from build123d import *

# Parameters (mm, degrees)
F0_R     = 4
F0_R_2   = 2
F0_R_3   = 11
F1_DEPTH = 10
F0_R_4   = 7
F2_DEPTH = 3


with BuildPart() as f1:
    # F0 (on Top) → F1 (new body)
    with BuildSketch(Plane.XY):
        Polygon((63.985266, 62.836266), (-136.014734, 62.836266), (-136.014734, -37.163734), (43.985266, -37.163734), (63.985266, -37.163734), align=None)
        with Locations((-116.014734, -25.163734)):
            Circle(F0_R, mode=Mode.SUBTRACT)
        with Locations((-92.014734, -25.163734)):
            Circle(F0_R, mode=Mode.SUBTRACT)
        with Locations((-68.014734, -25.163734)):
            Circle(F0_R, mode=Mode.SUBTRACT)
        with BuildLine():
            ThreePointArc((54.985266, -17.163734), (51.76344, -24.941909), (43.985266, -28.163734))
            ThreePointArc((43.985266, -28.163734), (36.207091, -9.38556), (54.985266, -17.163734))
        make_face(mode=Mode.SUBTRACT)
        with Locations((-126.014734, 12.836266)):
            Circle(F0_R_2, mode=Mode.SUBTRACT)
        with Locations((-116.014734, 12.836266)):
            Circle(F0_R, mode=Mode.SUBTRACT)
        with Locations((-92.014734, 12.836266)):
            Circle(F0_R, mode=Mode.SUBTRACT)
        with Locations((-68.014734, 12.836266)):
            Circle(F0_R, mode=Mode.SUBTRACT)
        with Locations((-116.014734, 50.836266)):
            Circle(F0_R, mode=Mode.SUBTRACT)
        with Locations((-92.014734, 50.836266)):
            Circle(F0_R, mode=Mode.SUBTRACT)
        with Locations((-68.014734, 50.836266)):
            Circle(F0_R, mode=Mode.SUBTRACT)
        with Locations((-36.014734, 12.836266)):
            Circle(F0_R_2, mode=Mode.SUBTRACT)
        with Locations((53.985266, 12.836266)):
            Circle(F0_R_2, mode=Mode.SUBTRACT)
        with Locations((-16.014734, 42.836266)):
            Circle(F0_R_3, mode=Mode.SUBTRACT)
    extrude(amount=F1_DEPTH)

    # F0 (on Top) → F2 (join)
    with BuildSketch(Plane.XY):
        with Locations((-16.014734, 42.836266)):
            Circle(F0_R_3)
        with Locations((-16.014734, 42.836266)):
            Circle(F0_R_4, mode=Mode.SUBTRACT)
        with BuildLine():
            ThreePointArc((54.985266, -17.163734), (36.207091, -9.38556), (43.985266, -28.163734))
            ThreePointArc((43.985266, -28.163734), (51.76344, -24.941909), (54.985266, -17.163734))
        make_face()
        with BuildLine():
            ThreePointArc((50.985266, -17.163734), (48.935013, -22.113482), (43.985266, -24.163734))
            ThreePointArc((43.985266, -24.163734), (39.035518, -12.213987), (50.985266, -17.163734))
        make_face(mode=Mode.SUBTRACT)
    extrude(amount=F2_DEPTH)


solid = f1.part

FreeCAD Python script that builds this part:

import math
import FreeCAD as App
import Part
import Sketcher

V = App.Vector
Q = App.Units.Quantity


def add_polygon(sketch, points):
    """Adds a closed chain of lines whose ends are joined by coincident constraints."""
    first, n = sketch.GeometryCount, len(points)
    for a, b in zip(points, points[1:] + points[:1]):
        sketch.addGeometry(Part.LineSegment(App.Vector(*a, 0), App.Vector(*b, 0)), False)
    for i in range(n):
        sketch.addConstraint(Sketcher.Constraint("Coincident", first + i, 2, first + (i + 1) % n, 1))

doc = App.newDocument("Part")
body = doc.addObject("PartDesign::Body", "Body")

# Sketch on XY plane
sketch1 = doc.addObject("Sketcher::SketchObject", "Sketch")
body.addObject(sketch1)
sketch1.AttachmentSupport = (doc.XY_Plane, [""])
sketch1.MapMode = "FlatFace"
add_polygon(sketch1, [(64, 62.8), (-136, 62.8), (-136, -37.2), (64, -37.2)])  # lines 0-3
sketch1.addGeometry(Part.Circle(V(-116, -25.2, 0), V(0, 0, 1), 4), False)  # 4
sketch1.addGeometry(Part.Circle(V(-92, -25.2, 0), V(0, 0, 1), 4), False)  # 5
sketch1.addGeometry(Part.Circle(V(-68, -25.2, 0), V(0, 0, 1), 4), False)  # 6
sketch1.addGeometry(Part.ArcOfCircle(Part.Circle(V(44, -17.2, 0), V(0, 0, 1), 11), math.radians(0), math.radians(270)), False)  # 7
sketch1.addGeometry(Part.ArcOfCircle(Part.Circle(V(44, -17.2, 0), V(0, 0, 1), 11), math.radians(-90), math.radians(0)), False)  # 8
sketch1.addGeometry(Part.Circle(V(-126, 12.8, 0), V(0, 0, 1), 2), False)  # 9
sketch1.addGeometry(Part.Circle(V(-116, 12.8, 0), V(0, 0, 1), 4), False)  # 10
sketch1.addGeometry(Part.Circle(V(-92, 12.8, 0), V(0, 0, 1), 4), False)  # 11
sketch1.addGeometry(Part.Circle(V(-68, 12.8, 0), V(0, 0, 1), 4), False)  # 12
sketch1.addGeometry(Part.Circle(V(-116, 50.8, 0), V(0, 0, 1), 4), False)  # 13
sketch1.addGeometry(Part.Circle(V(-92, 50.8, 0), V(0, 0, 1), 4), False)  # 14
sketch1.addGeometry(Part.Circle(V(-68, 50.8, 0), V(0, 0, 1), 4), False)  # 15
sketch1.addGeometry(Part.Circle(V(-36, 12.8, 0), V(0, 0, 1), 2), False)  # 16
sketch1.addGeometry(Part.Circle(V(54, 12.8, 0), V(0, 0, 1), 2), False)  # 17
sketch1.addGeometry(Part.Circle(V(-16, 42.8, 0), V(0, 0, 1), 11), False)  # 18
sketch1.addConstraint([
    Sketcher.Constraint("Tangent", 7, 1, 8, 2),
    Sketcher.Constraint("Coincident", 8, 1, 7, 2),
    Sketcher.Constraint("Horizontal", 0),
    Sketcher.Constraint("Vertical", 1),
    Sketcher.Constraint("Horizontal", 2),
    Sketcher.Constraint("Vertical", 3),
    Sketcher.Constraint("Equal", 4, 5),
    Sketcher.Constraint("Equal", 5, 6),
    Sketcher.Constraint("Equal", 6, 10),
    Sketcher.Constraint("Equal", 10, 11),
    Sketcher.Constraint("Equal", 11, 12),
    Sketcher.Constraint("Equal", 12, 13),
    Sketcher.Constraint("Equal", 13, 14),
    Sketcher.Constraint("Equal", 14, 15),
    Sketcher.Constraint("Equal", 9, 16),
    Sketcher.Constraint("Equal", 16, 17),
    Sketcher.Constraint("Equal", 8, 18),
    Sketcher.Constraint("Horizontal", 4, 3, 5, 3),
    Sketcher.Constraint("Horizontal", 5, 3, 6, 3),
    Sketcher.Constraint("Horizontal", 9, 3, 10, 3),
    Sketcher.Constraint("Horizontal", 10, 3, 11, 3),
    Sketcher.Constraint("Horizontal", 11, 3, 12, 3),
    Sketcher.Constraint("Horizontal", 13, 3, 14, 3),
    Sketcher.Constraint("Horizontal", 14, 3, 15, 3),
    Sketcher.Constraint("Horizontal", 12, 3, 16, 3),
    Sketcher.Constraint("Horizontal", 16, 3, 17, 3),
    Sketcher.Constraint("Horizontal", 8, 3, 7, 1),
    Sketcher.Constraint("Vertical", 4, 3, 10, 3),
    Sketcher.Constraint("Vertical", 5, 3, 11, 3),
    Sketcher.Constraint("Vertical", 6, 3, 12, 3),
    Sketcher.Constraint("Vertical", 10, 3, 13, 3),
    Sketcher.Constraint("Vertical", 11, 3, 14, 3),
    Sketcher.Constraint("Vertical", 12, 3, 15, 3),
    Sketcher.Constraint("Vertical", 7, 3, 8, 1),
    Sketcher.Constraint("Diameter", 4, Q("8 mm")),
    Sketcher.Constraint("Diameter", 9, Q("4 mm")),
    Sketcher.Constraint("Diameter", 18, Q("22 mm")),
    Sketcher.Constraint("DistanceX", 0, 2, 0, 1, Q("200 mm")),
    Sketcher.Constraint("DistanceY", 1, 2, 1, 1, Q("100 mm")),
    Sketcher.Constraint("DistanceX", 4, 3, 5, 3, Q("24 mm")),
    Sketcher.Constraint("DistanceX", 5, 3, 6, 3, Q("24 mm")),
    Sketcher.Constraint("DistanceX", 6, 3, 7, 3, Q("112 mm")),
    Sketcher.Constraint("DistanceY", 6, 3, 7, 3, Q("8 mm")),
    Sketcher.Constraint("DistanceX", 9, 3, 4, 3, Q("10 mm")),
    Sketcher.Constraint("DistanceY", 4, 3, 9, 3, Q("38 mm")),
    Sketcher.Constraint("DistanceY", 10, 3, 13, 3, Q("38 mm")),
    Sketcher.Constraint("DistanceX", 12, 3, 16, 3, Q("32 mm")),
    Sketcher.Constraint("DistanceX", 8, 3, 17, 3, Q("10 mm")),
    Sketcher.Constraint("DistanceX", 16, 3, 18, 3, Q("20 mm")),
    Sketcher.Constraint("DistanceY", 16, 3, 18, 3, Q("30 mm")),
    Sketcher.Constraint("DistanceX", 0, 2, 13, 3, Q("20 mm")),
    Sketcher.Constraint("DistanceY", 13, 3, 0, 2, Q("12 mm")),
    Sketcher.Constraint("DistanceX", 4, 3, -1, 1, Q("116.014734 mm")),
    Sketcher.Constraint("DistanceY", 4, 3, -1, 1, Q("25.163734 mm")),
])
pad1 = doc.addObject("PartDesign::Pad", "Pad")
body.addObject(pad1)
pad1.Profile = sketch1
pad1.Length = 10

# Sketch on XY plane
sketch2 = doc.addObject("Sketcher::SketchObject", "Sketch001")
body.addObject(sketch2)
sketch2.AttachmentSupport = (doc.XY_Plane, [""])
sketch2.MapMode = "FlatFace"
sketch2.addGeometry([
    Part.Circle(V(-16, 43, 0), V(0, 0, 1), 11),  # 0
    Part.Circle(V(-16, 43, 0), V(0, 0, 1), 7),  # 1
    Part.ArcOfCircle(Part.Circle(V(44, -17, 0), V(0, 0, 1), 11), math.radians(0), math.radians(270)),  # 2
    Part.ArcOfCircle(Part.Circle(V(44, -17, 0), V(0, 0, 1), 11), math.radians(-90), math.radians(0)),  # 3
    Part.ArcOfCircle(Part.Circle(V(44, -17, 0), V(0, 0, 1), 7), math.radians(0), math.radians(270)),  # 4
    Part.ArcOfCircle(Part.Circle(V(44, -17, 0), V(0, 0, 1), 7), math.radians(-90), math.radians(0)),  # 5
], False)
sketch2.addConstraint([
    Sketcher.Constraint("Tangent", 2, 1, 3, 2),
    Sketcher.Constraint("Coincident", 3, 1, 2, 2),
    Sketcher.Constraint("Tangent", 4, 1, 5, 2),
    Sketcher.Constraint("Coincident", 5, 1, 4, 2),
    Sketcher.Constraint("Coincident", 1, 3, 0, 3),
    Sketcher.Constraint("Coincident", 4, 3, 2, 3),
    Sketcher.Constraint("Equal", 0, 2),
    Sketcher.Constraint("Equal", 1, 4),
    Sketcher.Constraint("Horizontal", 5, 3, 2, 1),
    Sketcher.Constraint("Horizontal", 2, 1, 4, 1),
    Sketcher.Constraint("Vertical", 5, 3, 3, 1),
    Sketcher.Constraint("Vertical", 3, 1, 5, 1),
    Sketcher.Constraint("Diameter", 0, Q("22 mm")),
    Sketcher.Constraint("Diameter", 1, Q("14 mm")),
    Sketcher.Constraint("DistanceX", 0, 3, 2, 3, Q("60 mm")),
    Sketcher.Constraint("DistanceY", 2, 3, 0, 3, Q("60 mm")),
    Sketcher.Constraint("DistanceX", 0, 3, -1, 1, Q("16.014734 mm")),
    Sketcher.Constraint("DistanceY", -1, 1, 0, 3, Q("42.836266 mm")),
])
pad2 = doc.addObject("PartDesign::Pad", "Pad001")
body.addObject(pad2)
pad2.Profile = sketch2
pad2.Length = 3

doc.recompute()
